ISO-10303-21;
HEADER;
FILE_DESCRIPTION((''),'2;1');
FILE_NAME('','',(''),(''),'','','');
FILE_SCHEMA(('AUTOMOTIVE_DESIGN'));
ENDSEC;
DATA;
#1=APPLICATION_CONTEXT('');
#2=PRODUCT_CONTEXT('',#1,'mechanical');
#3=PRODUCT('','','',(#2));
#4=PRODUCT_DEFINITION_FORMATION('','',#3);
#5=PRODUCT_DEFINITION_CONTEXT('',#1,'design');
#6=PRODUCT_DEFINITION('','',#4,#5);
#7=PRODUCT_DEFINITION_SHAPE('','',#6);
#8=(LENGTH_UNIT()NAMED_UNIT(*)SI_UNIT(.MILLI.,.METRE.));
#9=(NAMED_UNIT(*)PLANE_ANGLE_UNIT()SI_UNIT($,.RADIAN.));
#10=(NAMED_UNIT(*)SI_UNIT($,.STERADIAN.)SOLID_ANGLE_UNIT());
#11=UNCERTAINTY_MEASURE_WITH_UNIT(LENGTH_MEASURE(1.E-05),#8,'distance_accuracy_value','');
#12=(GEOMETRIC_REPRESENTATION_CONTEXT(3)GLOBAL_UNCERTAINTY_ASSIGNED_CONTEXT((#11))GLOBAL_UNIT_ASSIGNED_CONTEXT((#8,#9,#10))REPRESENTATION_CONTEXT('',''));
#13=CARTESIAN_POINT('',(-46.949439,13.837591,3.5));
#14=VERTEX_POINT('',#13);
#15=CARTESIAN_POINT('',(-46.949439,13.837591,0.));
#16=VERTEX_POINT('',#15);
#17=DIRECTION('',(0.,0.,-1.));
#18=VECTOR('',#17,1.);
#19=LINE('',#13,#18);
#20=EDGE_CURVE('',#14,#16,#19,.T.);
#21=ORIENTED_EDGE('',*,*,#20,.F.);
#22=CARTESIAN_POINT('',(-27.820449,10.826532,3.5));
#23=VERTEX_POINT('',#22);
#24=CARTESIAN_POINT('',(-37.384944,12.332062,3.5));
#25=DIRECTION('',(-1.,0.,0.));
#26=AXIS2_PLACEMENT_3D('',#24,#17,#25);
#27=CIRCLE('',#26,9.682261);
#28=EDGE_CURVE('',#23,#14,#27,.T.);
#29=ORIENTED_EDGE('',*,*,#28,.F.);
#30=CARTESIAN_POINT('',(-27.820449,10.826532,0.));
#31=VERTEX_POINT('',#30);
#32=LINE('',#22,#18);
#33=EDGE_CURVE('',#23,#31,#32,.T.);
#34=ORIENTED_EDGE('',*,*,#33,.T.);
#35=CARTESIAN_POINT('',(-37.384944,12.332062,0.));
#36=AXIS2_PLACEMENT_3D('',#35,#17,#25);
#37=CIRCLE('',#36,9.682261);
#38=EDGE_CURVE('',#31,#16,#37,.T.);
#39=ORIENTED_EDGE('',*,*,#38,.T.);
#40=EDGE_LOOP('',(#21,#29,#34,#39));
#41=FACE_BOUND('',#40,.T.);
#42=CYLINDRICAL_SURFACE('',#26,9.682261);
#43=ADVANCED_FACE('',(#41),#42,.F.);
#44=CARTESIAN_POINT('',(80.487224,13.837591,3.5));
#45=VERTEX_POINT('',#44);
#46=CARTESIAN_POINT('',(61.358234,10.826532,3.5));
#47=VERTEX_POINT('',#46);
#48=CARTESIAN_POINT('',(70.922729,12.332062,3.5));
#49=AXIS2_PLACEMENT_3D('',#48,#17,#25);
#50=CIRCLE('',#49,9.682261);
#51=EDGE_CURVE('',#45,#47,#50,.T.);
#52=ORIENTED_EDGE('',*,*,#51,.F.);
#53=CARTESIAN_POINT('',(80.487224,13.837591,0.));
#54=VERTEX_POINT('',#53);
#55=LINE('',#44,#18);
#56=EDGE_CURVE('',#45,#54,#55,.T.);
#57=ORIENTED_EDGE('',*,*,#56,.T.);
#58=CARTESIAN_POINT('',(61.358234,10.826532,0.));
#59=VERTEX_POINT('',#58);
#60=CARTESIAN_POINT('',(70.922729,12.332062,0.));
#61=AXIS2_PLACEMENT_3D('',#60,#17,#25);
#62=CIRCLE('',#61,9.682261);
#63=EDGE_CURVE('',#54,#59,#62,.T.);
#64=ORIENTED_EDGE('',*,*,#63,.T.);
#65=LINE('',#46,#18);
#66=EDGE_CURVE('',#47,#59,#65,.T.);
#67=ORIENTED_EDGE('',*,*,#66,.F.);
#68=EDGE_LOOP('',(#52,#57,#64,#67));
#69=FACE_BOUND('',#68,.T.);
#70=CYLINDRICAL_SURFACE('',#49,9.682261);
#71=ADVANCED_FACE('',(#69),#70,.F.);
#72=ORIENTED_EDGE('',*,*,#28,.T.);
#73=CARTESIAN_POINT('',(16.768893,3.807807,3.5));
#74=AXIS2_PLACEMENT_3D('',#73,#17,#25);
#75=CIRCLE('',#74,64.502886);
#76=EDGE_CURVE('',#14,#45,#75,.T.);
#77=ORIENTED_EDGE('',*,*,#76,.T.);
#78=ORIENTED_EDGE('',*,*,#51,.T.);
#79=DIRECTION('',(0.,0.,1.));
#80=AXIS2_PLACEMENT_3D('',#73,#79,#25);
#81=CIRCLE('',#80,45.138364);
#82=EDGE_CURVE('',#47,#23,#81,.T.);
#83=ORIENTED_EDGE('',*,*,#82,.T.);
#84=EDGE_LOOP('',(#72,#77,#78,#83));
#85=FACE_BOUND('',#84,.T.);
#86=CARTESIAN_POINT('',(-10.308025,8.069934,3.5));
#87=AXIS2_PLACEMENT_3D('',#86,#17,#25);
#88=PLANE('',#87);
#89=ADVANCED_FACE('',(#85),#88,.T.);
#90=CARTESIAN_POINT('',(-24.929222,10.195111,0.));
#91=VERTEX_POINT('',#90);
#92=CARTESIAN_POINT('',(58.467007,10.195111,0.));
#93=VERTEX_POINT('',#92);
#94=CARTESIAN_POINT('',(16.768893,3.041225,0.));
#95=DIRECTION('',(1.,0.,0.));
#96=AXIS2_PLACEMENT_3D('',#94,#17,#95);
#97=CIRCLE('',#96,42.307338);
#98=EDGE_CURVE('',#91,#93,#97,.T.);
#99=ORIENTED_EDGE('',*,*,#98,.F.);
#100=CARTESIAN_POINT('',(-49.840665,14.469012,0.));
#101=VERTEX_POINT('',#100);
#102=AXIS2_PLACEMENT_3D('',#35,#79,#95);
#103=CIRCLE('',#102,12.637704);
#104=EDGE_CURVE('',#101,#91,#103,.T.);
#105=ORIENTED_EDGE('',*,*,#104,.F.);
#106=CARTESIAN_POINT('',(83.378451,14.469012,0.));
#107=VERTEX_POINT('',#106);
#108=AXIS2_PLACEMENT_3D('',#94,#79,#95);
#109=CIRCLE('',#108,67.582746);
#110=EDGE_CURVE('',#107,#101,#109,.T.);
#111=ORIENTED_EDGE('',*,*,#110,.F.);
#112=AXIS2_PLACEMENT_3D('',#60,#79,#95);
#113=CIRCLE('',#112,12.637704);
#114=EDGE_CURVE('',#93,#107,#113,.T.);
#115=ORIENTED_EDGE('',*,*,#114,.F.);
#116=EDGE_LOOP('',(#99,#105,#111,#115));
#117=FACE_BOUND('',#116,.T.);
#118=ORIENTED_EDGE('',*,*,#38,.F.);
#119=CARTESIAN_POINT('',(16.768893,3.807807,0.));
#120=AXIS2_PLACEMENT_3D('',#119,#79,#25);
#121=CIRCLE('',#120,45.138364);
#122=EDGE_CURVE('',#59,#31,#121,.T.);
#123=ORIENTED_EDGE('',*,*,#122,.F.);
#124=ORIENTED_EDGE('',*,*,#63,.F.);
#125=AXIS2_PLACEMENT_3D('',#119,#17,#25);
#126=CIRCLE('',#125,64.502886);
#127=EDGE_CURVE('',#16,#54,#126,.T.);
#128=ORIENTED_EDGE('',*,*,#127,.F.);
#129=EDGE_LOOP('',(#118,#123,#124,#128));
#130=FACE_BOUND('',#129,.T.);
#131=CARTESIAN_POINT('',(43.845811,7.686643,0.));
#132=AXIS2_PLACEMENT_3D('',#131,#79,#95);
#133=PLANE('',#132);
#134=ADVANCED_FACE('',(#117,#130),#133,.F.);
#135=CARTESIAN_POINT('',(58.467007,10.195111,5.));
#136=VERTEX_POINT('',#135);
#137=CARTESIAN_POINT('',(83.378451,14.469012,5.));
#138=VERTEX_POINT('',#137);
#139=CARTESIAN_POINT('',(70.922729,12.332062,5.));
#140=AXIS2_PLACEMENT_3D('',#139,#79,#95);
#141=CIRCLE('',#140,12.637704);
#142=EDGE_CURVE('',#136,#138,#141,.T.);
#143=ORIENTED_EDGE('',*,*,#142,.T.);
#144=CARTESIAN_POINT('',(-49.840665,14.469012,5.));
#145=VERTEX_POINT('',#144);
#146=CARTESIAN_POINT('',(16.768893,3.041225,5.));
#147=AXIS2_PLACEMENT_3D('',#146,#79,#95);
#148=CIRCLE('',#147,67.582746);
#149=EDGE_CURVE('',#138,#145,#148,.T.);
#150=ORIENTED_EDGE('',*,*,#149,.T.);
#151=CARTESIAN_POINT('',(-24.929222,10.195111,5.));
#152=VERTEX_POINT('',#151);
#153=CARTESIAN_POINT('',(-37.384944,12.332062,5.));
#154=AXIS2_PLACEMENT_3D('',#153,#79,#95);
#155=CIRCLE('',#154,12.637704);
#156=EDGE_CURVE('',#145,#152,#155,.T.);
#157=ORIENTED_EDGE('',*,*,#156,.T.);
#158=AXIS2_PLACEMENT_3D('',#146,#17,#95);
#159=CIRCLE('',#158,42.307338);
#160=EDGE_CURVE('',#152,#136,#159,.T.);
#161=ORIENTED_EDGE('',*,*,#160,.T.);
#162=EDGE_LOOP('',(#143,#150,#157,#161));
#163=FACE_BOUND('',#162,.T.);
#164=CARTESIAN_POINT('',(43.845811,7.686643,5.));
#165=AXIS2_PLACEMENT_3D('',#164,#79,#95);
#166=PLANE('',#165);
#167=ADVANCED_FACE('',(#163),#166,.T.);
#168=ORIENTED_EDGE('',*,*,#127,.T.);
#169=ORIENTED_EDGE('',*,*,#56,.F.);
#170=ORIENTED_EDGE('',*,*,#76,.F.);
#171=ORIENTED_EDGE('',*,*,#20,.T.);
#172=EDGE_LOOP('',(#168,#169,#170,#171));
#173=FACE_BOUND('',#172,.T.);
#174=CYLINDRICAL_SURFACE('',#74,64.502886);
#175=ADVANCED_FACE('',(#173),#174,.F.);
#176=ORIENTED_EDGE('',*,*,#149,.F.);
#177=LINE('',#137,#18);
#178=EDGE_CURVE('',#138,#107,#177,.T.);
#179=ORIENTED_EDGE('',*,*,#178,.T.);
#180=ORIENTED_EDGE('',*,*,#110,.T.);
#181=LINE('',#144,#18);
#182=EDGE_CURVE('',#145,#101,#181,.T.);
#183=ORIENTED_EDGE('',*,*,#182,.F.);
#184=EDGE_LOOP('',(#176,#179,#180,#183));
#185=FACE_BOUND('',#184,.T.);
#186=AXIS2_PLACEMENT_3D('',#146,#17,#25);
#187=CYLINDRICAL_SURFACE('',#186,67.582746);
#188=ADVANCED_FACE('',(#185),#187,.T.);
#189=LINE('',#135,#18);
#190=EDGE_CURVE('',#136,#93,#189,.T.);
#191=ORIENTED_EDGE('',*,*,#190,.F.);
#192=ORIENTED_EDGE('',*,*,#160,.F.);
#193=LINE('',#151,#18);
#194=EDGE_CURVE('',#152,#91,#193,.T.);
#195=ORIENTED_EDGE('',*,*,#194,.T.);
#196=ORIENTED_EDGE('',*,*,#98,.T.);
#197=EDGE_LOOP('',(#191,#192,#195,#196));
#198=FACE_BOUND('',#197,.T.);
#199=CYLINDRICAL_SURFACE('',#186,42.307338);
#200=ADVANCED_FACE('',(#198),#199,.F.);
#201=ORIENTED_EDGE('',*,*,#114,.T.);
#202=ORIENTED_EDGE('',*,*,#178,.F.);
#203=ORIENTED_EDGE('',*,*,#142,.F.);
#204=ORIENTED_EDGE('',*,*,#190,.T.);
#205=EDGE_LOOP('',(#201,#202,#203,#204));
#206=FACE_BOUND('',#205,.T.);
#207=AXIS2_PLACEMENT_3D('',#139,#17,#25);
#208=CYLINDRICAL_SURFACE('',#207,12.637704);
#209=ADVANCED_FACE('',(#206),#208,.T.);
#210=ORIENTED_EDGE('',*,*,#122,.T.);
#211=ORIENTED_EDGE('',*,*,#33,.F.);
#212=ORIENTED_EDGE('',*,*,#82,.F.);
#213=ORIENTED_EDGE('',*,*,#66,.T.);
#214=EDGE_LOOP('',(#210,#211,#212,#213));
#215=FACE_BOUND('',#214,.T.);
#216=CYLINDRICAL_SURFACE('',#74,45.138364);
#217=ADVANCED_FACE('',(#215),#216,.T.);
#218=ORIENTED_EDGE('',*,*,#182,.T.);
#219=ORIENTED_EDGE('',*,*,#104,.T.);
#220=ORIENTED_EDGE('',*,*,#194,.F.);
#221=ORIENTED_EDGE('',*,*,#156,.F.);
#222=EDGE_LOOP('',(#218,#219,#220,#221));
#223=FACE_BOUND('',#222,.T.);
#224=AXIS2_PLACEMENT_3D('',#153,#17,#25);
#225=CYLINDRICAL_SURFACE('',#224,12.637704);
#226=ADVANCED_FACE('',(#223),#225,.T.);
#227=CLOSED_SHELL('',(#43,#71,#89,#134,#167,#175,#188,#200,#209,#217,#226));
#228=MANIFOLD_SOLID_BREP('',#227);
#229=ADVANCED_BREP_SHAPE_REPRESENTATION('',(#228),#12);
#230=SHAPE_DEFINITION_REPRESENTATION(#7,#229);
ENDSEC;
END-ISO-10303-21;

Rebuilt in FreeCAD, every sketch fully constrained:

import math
import FreeCAD as App
import Part
import Sketcher
from FreeCAD import Vector
Q = App.Units.Quantity

doc = App.newDocument("Part")
body = doc.addObject("PartDesign::Body", "Body")

# Sketch on XY plane
sketch1 = doc.addObject("Sketcher::SketchObject", "Sketch")
body.addObject(sketch1)
sketch1.AttachmentSupport = (doc.XY_Plane, [""])
sketch1.MapMode = "FlatFace"
sketch1.addGeometry([
    Part.ArcOfCircle(Part.Circle(Vector(17, 3, 0), Vector(0, 0, 1), 68), math.radians(10), math.radians(170)),
    Part.ArcOfCircle(Part.Circle(Vector(-37, 12, 0), Vector(0, 0, 1), 13), math.radians(170), math.radians(350)),
    Part.ArcOfCircle(Part.Circle(Vector(17, 3, 0), Vector(0, 0, 1), 42), math.radians(10), math.radians(170)),
    Part.ArcOfCircle(Part.Circle(Vector(71, 12, 0), Vector(0, 0, 1), 13), math.radians(-170), math.radians(10)),
], False)
sketch1.addConstraint([
    Sketcher.Constraint("Tangent", 0, 2, 1, 1),
    Sketcher.Constraint("Tangent", 1, 2, 2, 2),
    Sketcher.Constraint("Tangent", 2, 1, 3, 1),
    Sketcher.Constraint("Tangent", 3, 2, 0, 1),
    Sketcher.Constraint("Coincident", 2, 3, 0, 3),
    Sketcher.Constraint("Horizontal", 1, 3, 3, 3),
    Sketcher.Constraint("Radius", 2, Q("42.307338 mm")),
    Sketcher.Constraint("Radius", 0, Q("67.582746 mm")),
    Sketcher.Constraint("DistanceY", 1, 2, 0, 2, Q("4.273901 mm")),
    Sketcher.Constraint("DistanceY", -1, 1, 1, 3, Q("12.332062 mm")),
    Sketcher.Constraint("DistanceX", -1, 1, 3, 3, Q("70.922729 mm")),
])
pad1 = doc.addObject("PartDesign::Pad", "Pad")
body.addObject(pad1)
pad1.Profile = sketch1
pad1.Length = 5

# Sketch on XY plane
sketch2 = doc.addObject("Sketcher::SketchObject", "Sketch001")
body.addObject(sketch2)
sketch2.AttachmentSupport = (doc.XY_Plane, [""])
sketch2.MapMode = "FlatFace"
sketch2.addGeometry([
    Part.ArcOfCircle(Part.Circle(Vector(17, 4, 0), Vector(0, 0, 1), 65), math.radians(9), math.radians(171)),
    Part.ArcOfCircle(Part.Circle(Vector(71, 12, 0), Vector(0, 0, 1), 10), math.radians(-171), math.radians(9)),
    Part.ArcOfCircle(Part.Circle(Vector(17, 4, 0), Vector(0, 0, 1), 45), math.radians(9), math.radians(171)),
    Part.ArcOfCircle(Part.Circle(Vector(-37, 12, 0), Vector(0, 0, 1), 10), math.radians(171), math.radians(351)),
], False)
sketch2.addConstraint([
    Sketcher.Constraint("Tangent", 0, 1, 1, 2),
    Sketcher.Constraint("Tangent", 1, 1, 2, 1),
    Sketcher.Constraint("Tangent", 2, 2, 3, 2),
    Sketcher.Constraint("Tangent", 3, 1, 0, 2),
    Sketcher.Constraint("Coincident", 2, 3, 0, 3),
    Sketcher.Constraint("Horizontal", 1, 3, 3, 3),
    Sketcher.Constraint("Radius", 1, Q("9.682261 mm")),
    Sketcher.Constraint("Radius", 0, Q("64.502886 mm")),
    Sketcher.Constraint("DistanceX", -1, 1, 1, 3, Q("70.922729 mm")),
    Sketcher.Constraint("DistanceY", -1, 1, 1, 3, Q("12.332062 mm")),
    Sketcher.Constraint("DistanceX", 2, 2, -1, 1, Q("27.820449 mm")),
])
pocket1 = doc.addObject("PartDesign::Pocket", "Pocket")
body.addObject(pocket1)
pocket1.Profile = sketch2
pocket1.Length = 3.5
pocket1.Reversed = True

doc.recompute()
